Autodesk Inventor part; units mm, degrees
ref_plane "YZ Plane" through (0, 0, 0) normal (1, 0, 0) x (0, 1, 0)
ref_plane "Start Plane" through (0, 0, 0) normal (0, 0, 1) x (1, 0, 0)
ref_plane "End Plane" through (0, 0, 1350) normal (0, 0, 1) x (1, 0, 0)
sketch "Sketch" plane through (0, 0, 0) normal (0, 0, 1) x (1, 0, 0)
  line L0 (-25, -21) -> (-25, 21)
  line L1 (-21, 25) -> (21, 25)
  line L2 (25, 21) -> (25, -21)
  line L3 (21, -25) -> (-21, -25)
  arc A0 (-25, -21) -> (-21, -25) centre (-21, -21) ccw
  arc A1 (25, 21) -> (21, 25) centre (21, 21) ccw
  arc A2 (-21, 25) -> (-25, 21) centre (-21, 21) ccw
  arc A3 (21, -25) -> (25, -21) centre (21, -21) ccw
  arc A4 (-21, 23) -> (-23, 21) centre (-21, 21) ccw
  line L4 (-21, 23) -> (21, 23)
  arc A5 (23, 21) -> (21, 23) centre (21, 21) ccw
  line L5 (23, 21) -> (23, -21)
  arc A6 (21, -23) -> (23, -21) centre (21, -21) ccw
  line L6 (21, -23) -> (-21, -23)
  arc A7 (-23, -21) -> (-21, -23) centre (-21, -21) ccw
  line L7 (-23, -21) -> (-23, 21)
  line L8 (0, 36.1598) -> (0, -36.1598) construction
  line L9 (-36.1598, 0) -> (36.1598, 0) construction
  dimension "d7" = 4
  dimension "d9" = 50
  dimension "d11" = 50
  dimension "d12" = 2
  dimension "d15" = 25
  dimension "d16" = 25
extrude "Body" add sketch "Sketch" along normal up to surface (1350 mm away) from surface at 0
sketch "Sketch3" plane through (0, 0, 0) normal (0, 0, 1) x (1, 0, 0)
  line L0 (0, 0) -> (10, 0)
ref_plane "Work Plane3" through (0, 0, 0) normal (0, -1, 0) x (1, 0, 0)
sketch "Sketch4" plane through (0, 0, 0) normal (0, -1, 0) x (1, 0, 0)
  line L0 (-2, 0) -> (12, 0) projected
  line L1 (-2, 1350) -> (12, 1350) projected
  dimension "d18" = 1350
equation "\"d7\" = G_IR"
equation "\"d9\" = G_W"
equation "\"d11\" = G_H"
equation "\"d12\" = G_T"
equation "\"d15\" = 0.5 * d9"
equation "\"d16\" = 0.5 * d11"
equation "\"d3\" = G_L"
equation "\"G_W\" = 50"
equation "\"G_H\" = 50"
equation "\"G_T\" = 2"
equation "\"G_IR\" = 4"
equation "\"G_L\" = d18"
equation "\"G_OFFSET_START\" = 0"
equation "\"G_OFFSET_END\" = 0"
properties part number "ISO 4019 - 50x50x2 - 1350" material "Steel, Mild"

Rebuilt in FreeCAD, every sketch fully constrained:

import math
import FreeCAD as App
import Part
import Sketcher

V = App.Vector
Q = App.Units.Quantity

doc = App.newDocument("Part")
body = doc.addObject("PartDesign::Body", "Body")

# Sketch on XY plane
sketch1 = body.newObject("Sketcher::SketchObject", "Sketch")
sketch1.AttachmentSupport = (doc.getObject("XY_Plane"), [""])
sketch1.MapMode = "FlatFace"
sketch1.addGeometry([
    Part.LineSegment(V(-25, 21, 0), V(-25, -21, 0)),  # 0
    Part.ArcOfCircle(Part.Circle(V(-21, -21, 0), V(0, 0, 1), 4), math.radians(180), math.radians(270)),  # 1
    Part.LineSegment(V(-21, -25, 0), V(21, -25, 0)),  # 2
    Part.ArcOfCircle(Part.Circle(V(21, -21, 0), V(0, 0, 1), 4), math.radians(-90), math.radians(0)),  # 3
    Part.LineSegment(V(25, -21, 0), V(25, 21, 0)),  # 4
    Part.ArcOfCircle(Part.Circle(V(21, 21, 0), V(0, 0, 1), 4), math.radians(0), math.radians(90)),  # 5
    Part.LineSegment(V(21, 25, 0), V(-21, 25, 0)),  # 6
    Part.ArcOfCircle(Part.Circle(V(-21, 21, 0), V(0, 0, 1), 4), math.radians(90), math.radians(180)),  # 7
    Part.ArcOfCircle(Part.Circle(V(-21, 21, 0), V(0, 0, 1), 2), math.radians(90), math.radians(180)),  # 8
    Part.LineSegment(V(-21, 23, 0), V(21, 23, 0)),  # 9
    Part.ArcOfCircle(Part.Circle(V(21, 21, 0), V(0, 0, 1), 2), math.radians(0), math.radians(90)),  # 10
    Part.LineSegment(V(23, 21, 0), V(23, -21, 0)),  # 11
    Part.ArcOfCircle(Part.Circle(V(21, -21, 0), V(0, 0, 1), 2), math.radians(-90), math.radians(0)),  # 12
    Part.LineSegment(V(21, -23, 0), V(-21, -23, 0)),  # 13
    Part.ArcOfCircle(Part.Circle(V(-21, -21, 0), V(0, 0, 1), 2), math.radians(180), math.radians(270)),  # 14
    Part.LineSegment(V(-23, -21, 0), V(-23, 21, 0)),  # 15
], False)
sketch1.addConstraint([
    Sketcher.Constraint("Tangent", 0, 2, 1, 1),
    Sketcher.Constraint("Tangent", 1, 2, 2, 1),
    Sketcher.Constraint("Tangent", 2, 2, 3, 1),
    Sketcher.Constraint("Tangent", 3, 2, 4, 1),
    Sketcher.Constraint("Tangent", 4, 2, 5, 1),
    Sketcher.Constraint("Tangent", 5, 2, 6, 1),
    Sketcher.Constraint("Tangent", 6, 2, 7, 1),
    Sketcher.Constraint("Tangent", 7, 2, 0, 1),
    Sketcher.Constraint("Tangent", 8, 1, 9, 1),
    Sketcher.Constraint("Tangent", 9, 2, 10, 2),
    Sketcher.Constraint("Tangent", 10, 1, 11, 1),
    Sketcher.Constraint("Tangent", 11, 2, 12, 2),
    Sketcher.Constraint("Tangent", 12, 1, 13, 1),
    Sketcher.Constraint("Tangent", 13, 2, 14, 2),
    Sketcher.Constraint("Tangent", 14, 1, 15, 1),
    Sketcher.Constraint("Tangent", 15, 2, 8, 2),
    Sketcher.Constraint("Vertical", 0),
    Sketcher.Constraint("Horizontal", 2),
    Sketcher.Constraint("Vertical", 4),
    Sketcher.Constraint("Horizontal", 6),
    Sketcher.Constraint("Horizontal", 9),
    Sketcher.Constraint("Vertical", 11),
    Sketcher.Constraint("Horizontal", 13),
    Sketcher.Constraint("Vertical", 15),
    Sketcher.Constraint("Coincident", 8, 3, 7, 3),
    Sketcher.Constraint("Coincident", 10, 3, 5, 3),
    Sketcher.Constraint("Coincident", 12, 3, 3, 3),
    Sketcher.Constraint("Equal", 1, 3),
    Sketcher.Constraint("Equal", 3, 5),
    Sketcher.Constraint("Equal", 5, 7),
    Sketcher.Constraint("Equal", 12, 14),
    Sketcher.Constraint("Symmetric", 1, 3, 5, 3, -1, 1),
    Sketcher.Constraint("Equal", 13, 0),
    Sketcher.Constraint("Radius", 1, Q("4 mm")),
    Sketcher.Constraint("Radius", 8, Q("2 mm")),
    Sketcher.Constraint("DistanceX", 0, 2, -1, 1, Q("25 mm")),
])
pad1 = body.newObject("PartDesign::Pad", "Pad")
pad1.Profile = sketch1
pad1.Length = 1350

doc.recompute()
